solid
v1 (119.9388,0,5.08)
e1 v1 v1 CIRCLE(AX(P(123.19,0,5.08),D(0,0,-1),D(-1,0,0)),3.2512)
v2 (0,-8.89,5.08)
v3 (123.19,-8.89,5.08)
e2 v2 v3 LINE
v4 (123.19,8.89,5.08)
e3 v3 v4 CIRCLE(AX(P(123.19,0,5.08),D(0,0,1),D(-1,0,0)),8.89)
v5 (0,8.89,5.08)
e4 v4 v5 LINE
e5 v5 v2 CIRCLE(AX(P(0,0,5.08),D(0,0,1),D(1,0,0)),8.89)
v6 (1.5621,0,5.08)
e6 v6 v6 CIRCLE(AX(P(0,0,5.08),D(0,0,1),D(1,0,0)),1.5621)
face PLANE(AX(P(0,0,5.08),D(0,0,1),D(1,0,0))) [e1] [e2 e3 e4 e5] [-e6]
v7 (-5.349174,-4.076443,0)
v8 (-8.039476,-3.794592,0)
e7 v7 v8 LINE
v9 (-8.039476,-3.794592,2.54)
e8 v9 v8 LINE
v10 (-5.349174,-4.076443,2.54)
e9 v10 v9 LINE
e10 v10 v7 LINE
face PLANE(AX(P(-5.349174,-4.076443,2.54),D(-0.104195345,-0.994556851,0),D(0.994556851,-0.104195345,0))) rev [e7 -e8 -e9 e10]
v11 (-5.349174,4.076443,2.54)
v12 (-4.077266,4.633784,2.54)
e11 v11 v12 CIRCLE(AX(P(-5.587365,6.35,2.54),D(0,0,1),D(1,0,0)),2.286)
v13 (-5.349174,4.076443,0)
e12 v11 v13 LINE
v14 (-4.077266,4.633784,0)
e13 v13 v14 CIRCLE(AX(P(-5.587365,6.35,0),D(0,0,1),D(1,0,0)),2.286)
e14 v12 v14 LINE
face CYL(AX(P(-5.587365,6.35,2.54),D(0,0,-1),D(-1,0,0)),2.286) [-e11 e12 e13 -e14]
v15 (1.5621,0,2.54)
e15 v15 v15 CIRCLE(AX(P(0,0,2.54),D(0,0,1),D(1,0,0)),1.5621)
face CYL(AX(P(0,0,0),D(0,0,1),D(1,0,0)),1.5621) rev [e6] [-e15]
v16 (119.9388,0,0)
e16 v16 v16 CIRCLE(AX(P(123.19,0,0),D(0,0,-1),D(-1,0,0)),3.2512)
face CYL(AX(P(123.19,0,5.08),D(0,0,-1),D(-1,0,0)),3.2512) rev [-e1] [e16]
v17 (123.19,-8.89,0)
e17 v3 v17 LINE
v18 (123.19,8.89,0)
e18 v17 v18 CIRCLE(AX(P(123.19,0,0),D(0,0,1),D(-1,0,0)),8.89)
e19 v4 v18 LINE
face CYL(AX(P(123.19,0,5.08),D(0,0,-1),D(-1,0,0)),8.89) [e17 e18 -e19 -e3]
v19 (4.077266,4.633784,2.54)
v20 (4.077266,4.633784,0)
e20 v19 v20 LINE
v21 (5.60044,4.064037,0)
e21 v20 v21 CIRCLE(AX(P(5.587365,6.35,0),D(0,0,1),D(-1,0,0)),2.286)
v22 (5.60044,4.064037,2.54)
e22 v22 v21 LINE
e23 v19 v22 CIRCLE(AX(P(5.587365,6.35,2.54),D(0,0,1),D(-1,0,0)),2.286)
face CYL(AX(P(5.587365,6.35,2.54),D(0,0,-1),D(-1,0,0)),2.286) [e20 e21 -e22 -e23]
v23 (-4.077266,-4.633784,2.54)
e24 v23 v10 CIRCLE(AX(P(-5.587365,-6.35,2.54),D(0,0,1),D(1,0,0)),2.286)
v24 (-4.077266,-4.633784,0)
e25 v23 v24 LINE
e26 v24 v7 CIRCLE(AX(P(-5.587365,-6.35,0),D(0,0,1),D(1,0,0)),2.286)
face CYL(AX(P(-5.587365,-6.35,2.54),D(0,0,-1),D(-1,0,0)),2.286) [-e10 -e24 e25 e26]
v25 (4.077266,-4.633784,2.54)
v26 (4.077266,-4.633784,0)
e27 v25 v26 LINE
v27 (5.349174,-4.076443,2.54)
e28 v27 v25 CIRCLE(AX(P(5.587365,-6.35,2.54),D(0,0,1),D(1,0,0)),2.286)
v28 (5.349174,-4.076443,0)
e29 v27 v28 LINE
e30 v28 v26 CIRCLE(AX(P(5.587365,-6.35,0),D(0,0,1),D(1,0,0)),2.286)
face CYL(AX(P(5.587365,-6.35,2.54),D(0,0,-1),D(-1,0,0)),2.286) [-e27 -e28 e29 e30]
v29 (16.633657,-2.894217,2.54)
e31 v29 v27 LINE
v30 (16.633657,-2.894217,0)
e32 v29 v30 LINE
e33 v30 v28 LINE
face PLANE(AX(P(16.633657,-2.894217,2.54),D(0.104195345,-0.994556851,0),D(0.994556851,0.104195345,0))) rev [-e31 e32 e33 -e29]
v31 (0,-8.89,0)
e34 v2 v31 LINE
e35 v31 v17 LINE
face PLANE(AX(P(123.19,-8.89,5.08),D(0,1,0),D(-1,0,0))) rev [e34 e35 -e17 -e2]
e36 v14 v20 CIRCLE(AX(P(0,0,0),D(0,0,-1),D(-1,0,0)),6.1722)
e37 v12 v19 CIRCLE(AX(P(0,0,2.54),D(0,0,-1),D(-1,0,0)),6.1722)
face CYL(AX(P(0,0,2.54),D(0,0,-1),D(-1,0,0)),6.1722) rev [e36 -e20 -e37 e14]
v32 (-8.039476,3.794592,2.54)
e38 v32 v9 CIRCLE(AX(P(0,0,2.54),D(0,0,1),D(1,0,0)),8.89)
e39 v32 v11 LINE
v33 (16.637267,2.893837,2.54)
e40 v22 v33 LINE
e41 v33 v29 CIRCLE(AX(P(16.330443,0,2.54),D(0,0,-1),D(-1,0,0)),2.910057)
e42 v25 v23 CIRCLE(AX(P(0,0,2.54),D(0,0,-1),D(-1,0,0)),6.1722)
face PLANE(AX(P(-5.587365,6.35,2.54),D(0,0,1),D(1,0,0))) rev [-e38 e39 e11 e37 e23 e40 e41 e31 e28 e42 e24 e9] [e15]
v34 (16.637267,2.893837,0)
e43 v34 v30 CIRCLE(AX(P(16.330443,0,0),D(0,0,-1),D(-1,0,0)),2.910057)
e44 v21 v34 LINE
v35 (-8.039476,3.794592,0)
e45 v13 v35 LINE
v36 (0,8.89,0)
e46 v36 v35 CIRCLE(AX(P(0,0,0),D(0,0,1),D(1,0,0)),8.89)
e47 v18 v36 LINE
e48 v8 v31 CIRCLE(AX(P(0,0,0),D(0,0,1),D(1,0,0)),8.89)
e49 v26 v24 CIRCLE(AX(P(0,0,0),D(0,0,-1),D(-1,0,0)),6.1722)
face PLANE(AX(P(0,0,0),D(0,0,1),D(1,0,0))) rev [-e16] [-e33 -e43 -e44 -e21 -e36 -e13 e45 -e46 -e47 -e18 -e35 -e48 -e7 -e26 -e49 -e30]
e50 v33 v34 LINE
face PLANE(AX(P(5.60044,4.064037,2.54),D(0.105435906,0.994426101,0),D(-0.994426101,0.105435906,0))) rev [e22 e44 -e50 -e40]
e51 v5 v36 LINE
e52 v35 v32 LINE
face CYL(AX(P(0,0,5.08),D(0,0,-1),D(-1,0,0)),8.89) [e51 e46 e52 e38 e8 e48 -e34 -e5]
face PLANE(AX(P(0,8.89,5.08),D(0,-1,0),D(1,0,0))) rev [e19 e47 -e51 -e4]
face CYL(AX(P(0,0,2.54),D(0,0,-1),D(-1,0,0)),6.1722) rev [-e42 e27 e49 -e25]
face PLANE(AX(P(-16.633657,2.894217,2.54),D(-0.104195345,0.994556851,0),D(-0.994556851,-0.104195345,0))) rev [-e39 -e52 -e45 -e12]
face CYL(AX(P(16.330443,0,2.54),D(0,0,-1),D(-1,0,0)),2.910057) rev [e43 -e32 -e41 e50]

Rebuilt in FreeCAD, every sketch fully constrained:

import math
import FreeCAD as App
import Part
import Sketcher
from FreeCAD import Vector
Q = App.Units.Quantity

doc = App.newDocument("Part")
body = doc.addObject("PartDesign::Body", "Body")

# Sketch on XY plane
sketch1 = body.newObject("Sketcher::SketchObject", "Sketch")
sketch1.AttachmentSupport = (doc.getObject("XY_Plane"), [""])
sketch1.MapMode = "FlatFace"
sketch1.addGeometry([
    Part.LineSegment(Vector(123.19, 8.89, 0), Vector(0, 8.89, 0)),
    Part.ArcOfCircle(Part.Circle(Vector(0, 0, 0), Vector(0, 0, 1), 8.89), math.radians(90), math.radians(270)),
    Part.LineSegment(Vector(0, -8.89, 0), Vector(123.19, -8.89, 0)),
    Part.ArcOfCircle(Part.Circle(Vector(123.19, 0, 0), Vector(0, 0, 1), 8.89), math.radians(-90), math.radians(90)),
], False)
sketch1.addConstraint([
    Sketcher.Constraint("Tangent", 0, 2, 1, 1),
    Sketcher.Constraint("Tangent", 1, 2, 2, 1),
    Sketcher.Constraint("Tangent", 2, 2, 3, 1),
    Sketcher.Constraint("Tangent", 3, 2, 0, 1),
    Sketcher.Constraint("Horizontal", 0),
    Sketcher.Constraint("Horizontal", 2),
    Sketcher.Constraint("Coincident", 1, 3, -1, 1),
    Sketcher.Constraint("Radius", 1, Q("0.35 in")),
    Sketcher.Constraint("DistanceX", 0, 2, 0, 1, Q("4.85 in")),
])
pad1 = body.newObject("PartDesign::Pad", "Pad")
pad1.Profile = sketch1
pad1.Length = Q("0.2 in")

# Sketch on XY plane
sketch2 = body.newObject("Sketcher::SketchObject", "Sketch001")
sketch2.AttachmentSupport = (doc.getObject("XY_Plane"), [""])
sketch2.MapMode = "FlatFace"
sketch2.addGeometry([
    Part.LineSegment(Vector(5.60044, 4.064037, 0), Vector(16.637267, 2.893837, 0)),  # 0
    Part.ArcOfCircle(Part.Circle(Vector(16.330443, 0, 0), Vector(0, 0, 1), 2.910057), math.radians(-84.019191), math.radians(83.947718)),  # 1
    Part.LineSegment(Vector(16.633657, -2.894217, 0), Vector(5.349174, -4.076443, 0)),  # 2
    Part.ArcOfCircle(Part.Circle(Vector(5.587365, -6.35, 0), Vector(0, 0, 1), 2.286), math.radians(95.980809), math.radians(131.344548)),  # 3
    Part.ArcOfCircle(Part.Circle(Vector(0, 0, 0), Vector(0, 0, 1), 6.1722), math.radians(-131.344548), math.radians(-48.655452)),  # 4
    Part.ArcOfCircle(Part.Circle(Vector(-5.587365, -6.35, 0), Vector(0, 0, 1), 2.286), math.radians(48.655452), math.radians(84.019191)),  # 5
    Part.LineSegment(Vector(-5.349174, -4.076443, 0), Vector(-16.633657, -2.894217, 0)),  # 6
    Part.ArcOfCircle(Part.Circle(Vector(-16.330443, 0, 0), Vector(0, 0, 1), 2.910057), math.radians(95.980809), math.radians(264.019191)),  # 7
    Part.LineSegment(Vector(-16.633657, 2.894217, 0), Vector(-5.349174, 4.076443, 0)),  # 8
    Part.ArcOfCircle(Part.Circle(Vector(-5.587365, 6.35, 0), Vector(0, 0, 1), 2.286), math.radians(-84.019191), math.radians(-48.655452)),  # 9
    Part.ArcOfCircle(Part.Circle(Vector(0, 0, 0), Vector(0, 0, 1), 6.1722), math.radians(48.655452), math.radians(131.344548)),  # 10
    Part.ArcOfCircle(Part.Circle(Vector(5.587365, 6.35, 0), Vector(0, 0, 1), 2.286), math.radians(-131.344548), math.radians(-89.672287)),  # 11
], False)
sketch2.addConstraint([
    Sketcher.Constraint("Tangent", 0, 2, 1, 2),
    Sketcher.Constraint("Tangent", 1, 1, 2, 1),
    Sketcher.Constraint("Tangent", 2, 2, 3, 1),
    Sketcher.Constraint("Tangent", 3, 2, 4, 2),
    Sketcher.Constraint("Tangent", 4, 1, 5, 1),
    Sketcher.Constraint("Tangent", 5, 2, 6, 1),
    Sketcher.Constraint("Tangent", 6, 2, 7, 2),
    Sketcher.Constraint("Tangent", 7, 1, 8, 1),
    Sketcher.Constraint("Tangent", 8, 2, 9, 1),
    Sketcher.Constraint("Tangent", 9, 2, 10, 2),
    Sketcher.Constraint("Tangent", 10, 1, 11, 1),
    Sketcher.Constraint("Coincident", 11, 2, 0, 1),
    Sketcher.Constraint("Coincident", 4, 3, -1, 1),
    Sketcher.Constraint("Coincident", 10, 3, -1, 1),
    Sketcher.Constraint("Equal", 3, 5),
    Sketcher.Constraint("Equal", 1, 7),
    Sketcher.Constraint("Equal", 5, 9),
    Sketcher.Constraint("Equal", 4, 10),
    Sketcher.Constraint("Equal", 9, 11),
    Sketcher.Constraint("Symmetric", 1, 3, 7, 3, -1, 1),
    Sketcher.Constraint("Symmetric", 2, 2, 5, 2, -2),
    Sketcher.Constraint("Parallel", 2, 8),
    Sketcher.Constraint("Horizontal", 9, 3, 11, 3),
    Sketcher.Constraint("Radius", 3, Q("0.09 in")),
    Sketcher.Constraint("Radius", 4, Q("0.243 in")),
    Sketcher.Constraint("DistanceY", 5, 3, 9, 3, Q("0.5 in")),
    Sketcher.Constraint("Radius", 1, Q("2.910057 mm")),
    Sketcher.Constraint("Distance", 0, Q("11.09869 mm")),
    Sketcher.Constraint("Distance", 2, Q("11.346242 mm")),
])
pocket1 = body.newObject("PartDesign::Pocket", "Pocket")
pocket1.Profile = sketch2
pocket1.Length = Q("0.1 in")
pocket1.Reversed = True

# Sketch on XY plane
sketch3 = body.newObject("Sketcher::SketchObject", "Sketch002")
sketch3.AttachmentSupport = (doc.getObject("XY_Plane"), [""])
sketch3.MapMode = "FlatFace"
sketch3.AttachmentOffset = App.Placement(Vector(0, 0, 0.2 * 25.4), App.Rotation())
sketch3.addGeometry(Part.Circle(Vector(0, 0, 0), Vector(0, 0, 1), 1.5621), False)
sketch3.addConstraint([
    Sketcher.Constraint("Coincident", 0, 3, -1, 1),
    Sketcher.Constraint("Diameter", 0, Q("0.123 in")),
])
pocket2 = body.newObject("PartDesign::Pocket", "Pocket001")
pocket2.Profile = sketch3
pocket2.Type = "ThroughAll"

# Sketch on XY plane
sketch4 = body.newObject("Sketcher::SketchObject", "Sketch003")
sketch4.AttachmentSupport = (doc.getObject("XY_Plane"), [""])
sketch4.MapMode = "FlatFace"
sketch4.addGeometry(Part.Circle(Vector(123.19, 0, 0), Vector(0, 0, 1), 3.2512), False)
sketch4.addConstraint([
    Sketcher.Constraint("PointOnObject", 0, 3, -1),
    Sketcher.Constraint("Diameter", 0, Q("0.256 in")),
    Sketcher.Constraint("DistanceX", -1, 1, 0, 3, Q("4.85 in")),
])
pocket3 = body.newObject("PartDesign::Pocket", "Pocket002")
pocket3.Profile = sketch4
pocket3.Type = "ThroughAll"
pocket3.Reversed = True

doc.recompute()
